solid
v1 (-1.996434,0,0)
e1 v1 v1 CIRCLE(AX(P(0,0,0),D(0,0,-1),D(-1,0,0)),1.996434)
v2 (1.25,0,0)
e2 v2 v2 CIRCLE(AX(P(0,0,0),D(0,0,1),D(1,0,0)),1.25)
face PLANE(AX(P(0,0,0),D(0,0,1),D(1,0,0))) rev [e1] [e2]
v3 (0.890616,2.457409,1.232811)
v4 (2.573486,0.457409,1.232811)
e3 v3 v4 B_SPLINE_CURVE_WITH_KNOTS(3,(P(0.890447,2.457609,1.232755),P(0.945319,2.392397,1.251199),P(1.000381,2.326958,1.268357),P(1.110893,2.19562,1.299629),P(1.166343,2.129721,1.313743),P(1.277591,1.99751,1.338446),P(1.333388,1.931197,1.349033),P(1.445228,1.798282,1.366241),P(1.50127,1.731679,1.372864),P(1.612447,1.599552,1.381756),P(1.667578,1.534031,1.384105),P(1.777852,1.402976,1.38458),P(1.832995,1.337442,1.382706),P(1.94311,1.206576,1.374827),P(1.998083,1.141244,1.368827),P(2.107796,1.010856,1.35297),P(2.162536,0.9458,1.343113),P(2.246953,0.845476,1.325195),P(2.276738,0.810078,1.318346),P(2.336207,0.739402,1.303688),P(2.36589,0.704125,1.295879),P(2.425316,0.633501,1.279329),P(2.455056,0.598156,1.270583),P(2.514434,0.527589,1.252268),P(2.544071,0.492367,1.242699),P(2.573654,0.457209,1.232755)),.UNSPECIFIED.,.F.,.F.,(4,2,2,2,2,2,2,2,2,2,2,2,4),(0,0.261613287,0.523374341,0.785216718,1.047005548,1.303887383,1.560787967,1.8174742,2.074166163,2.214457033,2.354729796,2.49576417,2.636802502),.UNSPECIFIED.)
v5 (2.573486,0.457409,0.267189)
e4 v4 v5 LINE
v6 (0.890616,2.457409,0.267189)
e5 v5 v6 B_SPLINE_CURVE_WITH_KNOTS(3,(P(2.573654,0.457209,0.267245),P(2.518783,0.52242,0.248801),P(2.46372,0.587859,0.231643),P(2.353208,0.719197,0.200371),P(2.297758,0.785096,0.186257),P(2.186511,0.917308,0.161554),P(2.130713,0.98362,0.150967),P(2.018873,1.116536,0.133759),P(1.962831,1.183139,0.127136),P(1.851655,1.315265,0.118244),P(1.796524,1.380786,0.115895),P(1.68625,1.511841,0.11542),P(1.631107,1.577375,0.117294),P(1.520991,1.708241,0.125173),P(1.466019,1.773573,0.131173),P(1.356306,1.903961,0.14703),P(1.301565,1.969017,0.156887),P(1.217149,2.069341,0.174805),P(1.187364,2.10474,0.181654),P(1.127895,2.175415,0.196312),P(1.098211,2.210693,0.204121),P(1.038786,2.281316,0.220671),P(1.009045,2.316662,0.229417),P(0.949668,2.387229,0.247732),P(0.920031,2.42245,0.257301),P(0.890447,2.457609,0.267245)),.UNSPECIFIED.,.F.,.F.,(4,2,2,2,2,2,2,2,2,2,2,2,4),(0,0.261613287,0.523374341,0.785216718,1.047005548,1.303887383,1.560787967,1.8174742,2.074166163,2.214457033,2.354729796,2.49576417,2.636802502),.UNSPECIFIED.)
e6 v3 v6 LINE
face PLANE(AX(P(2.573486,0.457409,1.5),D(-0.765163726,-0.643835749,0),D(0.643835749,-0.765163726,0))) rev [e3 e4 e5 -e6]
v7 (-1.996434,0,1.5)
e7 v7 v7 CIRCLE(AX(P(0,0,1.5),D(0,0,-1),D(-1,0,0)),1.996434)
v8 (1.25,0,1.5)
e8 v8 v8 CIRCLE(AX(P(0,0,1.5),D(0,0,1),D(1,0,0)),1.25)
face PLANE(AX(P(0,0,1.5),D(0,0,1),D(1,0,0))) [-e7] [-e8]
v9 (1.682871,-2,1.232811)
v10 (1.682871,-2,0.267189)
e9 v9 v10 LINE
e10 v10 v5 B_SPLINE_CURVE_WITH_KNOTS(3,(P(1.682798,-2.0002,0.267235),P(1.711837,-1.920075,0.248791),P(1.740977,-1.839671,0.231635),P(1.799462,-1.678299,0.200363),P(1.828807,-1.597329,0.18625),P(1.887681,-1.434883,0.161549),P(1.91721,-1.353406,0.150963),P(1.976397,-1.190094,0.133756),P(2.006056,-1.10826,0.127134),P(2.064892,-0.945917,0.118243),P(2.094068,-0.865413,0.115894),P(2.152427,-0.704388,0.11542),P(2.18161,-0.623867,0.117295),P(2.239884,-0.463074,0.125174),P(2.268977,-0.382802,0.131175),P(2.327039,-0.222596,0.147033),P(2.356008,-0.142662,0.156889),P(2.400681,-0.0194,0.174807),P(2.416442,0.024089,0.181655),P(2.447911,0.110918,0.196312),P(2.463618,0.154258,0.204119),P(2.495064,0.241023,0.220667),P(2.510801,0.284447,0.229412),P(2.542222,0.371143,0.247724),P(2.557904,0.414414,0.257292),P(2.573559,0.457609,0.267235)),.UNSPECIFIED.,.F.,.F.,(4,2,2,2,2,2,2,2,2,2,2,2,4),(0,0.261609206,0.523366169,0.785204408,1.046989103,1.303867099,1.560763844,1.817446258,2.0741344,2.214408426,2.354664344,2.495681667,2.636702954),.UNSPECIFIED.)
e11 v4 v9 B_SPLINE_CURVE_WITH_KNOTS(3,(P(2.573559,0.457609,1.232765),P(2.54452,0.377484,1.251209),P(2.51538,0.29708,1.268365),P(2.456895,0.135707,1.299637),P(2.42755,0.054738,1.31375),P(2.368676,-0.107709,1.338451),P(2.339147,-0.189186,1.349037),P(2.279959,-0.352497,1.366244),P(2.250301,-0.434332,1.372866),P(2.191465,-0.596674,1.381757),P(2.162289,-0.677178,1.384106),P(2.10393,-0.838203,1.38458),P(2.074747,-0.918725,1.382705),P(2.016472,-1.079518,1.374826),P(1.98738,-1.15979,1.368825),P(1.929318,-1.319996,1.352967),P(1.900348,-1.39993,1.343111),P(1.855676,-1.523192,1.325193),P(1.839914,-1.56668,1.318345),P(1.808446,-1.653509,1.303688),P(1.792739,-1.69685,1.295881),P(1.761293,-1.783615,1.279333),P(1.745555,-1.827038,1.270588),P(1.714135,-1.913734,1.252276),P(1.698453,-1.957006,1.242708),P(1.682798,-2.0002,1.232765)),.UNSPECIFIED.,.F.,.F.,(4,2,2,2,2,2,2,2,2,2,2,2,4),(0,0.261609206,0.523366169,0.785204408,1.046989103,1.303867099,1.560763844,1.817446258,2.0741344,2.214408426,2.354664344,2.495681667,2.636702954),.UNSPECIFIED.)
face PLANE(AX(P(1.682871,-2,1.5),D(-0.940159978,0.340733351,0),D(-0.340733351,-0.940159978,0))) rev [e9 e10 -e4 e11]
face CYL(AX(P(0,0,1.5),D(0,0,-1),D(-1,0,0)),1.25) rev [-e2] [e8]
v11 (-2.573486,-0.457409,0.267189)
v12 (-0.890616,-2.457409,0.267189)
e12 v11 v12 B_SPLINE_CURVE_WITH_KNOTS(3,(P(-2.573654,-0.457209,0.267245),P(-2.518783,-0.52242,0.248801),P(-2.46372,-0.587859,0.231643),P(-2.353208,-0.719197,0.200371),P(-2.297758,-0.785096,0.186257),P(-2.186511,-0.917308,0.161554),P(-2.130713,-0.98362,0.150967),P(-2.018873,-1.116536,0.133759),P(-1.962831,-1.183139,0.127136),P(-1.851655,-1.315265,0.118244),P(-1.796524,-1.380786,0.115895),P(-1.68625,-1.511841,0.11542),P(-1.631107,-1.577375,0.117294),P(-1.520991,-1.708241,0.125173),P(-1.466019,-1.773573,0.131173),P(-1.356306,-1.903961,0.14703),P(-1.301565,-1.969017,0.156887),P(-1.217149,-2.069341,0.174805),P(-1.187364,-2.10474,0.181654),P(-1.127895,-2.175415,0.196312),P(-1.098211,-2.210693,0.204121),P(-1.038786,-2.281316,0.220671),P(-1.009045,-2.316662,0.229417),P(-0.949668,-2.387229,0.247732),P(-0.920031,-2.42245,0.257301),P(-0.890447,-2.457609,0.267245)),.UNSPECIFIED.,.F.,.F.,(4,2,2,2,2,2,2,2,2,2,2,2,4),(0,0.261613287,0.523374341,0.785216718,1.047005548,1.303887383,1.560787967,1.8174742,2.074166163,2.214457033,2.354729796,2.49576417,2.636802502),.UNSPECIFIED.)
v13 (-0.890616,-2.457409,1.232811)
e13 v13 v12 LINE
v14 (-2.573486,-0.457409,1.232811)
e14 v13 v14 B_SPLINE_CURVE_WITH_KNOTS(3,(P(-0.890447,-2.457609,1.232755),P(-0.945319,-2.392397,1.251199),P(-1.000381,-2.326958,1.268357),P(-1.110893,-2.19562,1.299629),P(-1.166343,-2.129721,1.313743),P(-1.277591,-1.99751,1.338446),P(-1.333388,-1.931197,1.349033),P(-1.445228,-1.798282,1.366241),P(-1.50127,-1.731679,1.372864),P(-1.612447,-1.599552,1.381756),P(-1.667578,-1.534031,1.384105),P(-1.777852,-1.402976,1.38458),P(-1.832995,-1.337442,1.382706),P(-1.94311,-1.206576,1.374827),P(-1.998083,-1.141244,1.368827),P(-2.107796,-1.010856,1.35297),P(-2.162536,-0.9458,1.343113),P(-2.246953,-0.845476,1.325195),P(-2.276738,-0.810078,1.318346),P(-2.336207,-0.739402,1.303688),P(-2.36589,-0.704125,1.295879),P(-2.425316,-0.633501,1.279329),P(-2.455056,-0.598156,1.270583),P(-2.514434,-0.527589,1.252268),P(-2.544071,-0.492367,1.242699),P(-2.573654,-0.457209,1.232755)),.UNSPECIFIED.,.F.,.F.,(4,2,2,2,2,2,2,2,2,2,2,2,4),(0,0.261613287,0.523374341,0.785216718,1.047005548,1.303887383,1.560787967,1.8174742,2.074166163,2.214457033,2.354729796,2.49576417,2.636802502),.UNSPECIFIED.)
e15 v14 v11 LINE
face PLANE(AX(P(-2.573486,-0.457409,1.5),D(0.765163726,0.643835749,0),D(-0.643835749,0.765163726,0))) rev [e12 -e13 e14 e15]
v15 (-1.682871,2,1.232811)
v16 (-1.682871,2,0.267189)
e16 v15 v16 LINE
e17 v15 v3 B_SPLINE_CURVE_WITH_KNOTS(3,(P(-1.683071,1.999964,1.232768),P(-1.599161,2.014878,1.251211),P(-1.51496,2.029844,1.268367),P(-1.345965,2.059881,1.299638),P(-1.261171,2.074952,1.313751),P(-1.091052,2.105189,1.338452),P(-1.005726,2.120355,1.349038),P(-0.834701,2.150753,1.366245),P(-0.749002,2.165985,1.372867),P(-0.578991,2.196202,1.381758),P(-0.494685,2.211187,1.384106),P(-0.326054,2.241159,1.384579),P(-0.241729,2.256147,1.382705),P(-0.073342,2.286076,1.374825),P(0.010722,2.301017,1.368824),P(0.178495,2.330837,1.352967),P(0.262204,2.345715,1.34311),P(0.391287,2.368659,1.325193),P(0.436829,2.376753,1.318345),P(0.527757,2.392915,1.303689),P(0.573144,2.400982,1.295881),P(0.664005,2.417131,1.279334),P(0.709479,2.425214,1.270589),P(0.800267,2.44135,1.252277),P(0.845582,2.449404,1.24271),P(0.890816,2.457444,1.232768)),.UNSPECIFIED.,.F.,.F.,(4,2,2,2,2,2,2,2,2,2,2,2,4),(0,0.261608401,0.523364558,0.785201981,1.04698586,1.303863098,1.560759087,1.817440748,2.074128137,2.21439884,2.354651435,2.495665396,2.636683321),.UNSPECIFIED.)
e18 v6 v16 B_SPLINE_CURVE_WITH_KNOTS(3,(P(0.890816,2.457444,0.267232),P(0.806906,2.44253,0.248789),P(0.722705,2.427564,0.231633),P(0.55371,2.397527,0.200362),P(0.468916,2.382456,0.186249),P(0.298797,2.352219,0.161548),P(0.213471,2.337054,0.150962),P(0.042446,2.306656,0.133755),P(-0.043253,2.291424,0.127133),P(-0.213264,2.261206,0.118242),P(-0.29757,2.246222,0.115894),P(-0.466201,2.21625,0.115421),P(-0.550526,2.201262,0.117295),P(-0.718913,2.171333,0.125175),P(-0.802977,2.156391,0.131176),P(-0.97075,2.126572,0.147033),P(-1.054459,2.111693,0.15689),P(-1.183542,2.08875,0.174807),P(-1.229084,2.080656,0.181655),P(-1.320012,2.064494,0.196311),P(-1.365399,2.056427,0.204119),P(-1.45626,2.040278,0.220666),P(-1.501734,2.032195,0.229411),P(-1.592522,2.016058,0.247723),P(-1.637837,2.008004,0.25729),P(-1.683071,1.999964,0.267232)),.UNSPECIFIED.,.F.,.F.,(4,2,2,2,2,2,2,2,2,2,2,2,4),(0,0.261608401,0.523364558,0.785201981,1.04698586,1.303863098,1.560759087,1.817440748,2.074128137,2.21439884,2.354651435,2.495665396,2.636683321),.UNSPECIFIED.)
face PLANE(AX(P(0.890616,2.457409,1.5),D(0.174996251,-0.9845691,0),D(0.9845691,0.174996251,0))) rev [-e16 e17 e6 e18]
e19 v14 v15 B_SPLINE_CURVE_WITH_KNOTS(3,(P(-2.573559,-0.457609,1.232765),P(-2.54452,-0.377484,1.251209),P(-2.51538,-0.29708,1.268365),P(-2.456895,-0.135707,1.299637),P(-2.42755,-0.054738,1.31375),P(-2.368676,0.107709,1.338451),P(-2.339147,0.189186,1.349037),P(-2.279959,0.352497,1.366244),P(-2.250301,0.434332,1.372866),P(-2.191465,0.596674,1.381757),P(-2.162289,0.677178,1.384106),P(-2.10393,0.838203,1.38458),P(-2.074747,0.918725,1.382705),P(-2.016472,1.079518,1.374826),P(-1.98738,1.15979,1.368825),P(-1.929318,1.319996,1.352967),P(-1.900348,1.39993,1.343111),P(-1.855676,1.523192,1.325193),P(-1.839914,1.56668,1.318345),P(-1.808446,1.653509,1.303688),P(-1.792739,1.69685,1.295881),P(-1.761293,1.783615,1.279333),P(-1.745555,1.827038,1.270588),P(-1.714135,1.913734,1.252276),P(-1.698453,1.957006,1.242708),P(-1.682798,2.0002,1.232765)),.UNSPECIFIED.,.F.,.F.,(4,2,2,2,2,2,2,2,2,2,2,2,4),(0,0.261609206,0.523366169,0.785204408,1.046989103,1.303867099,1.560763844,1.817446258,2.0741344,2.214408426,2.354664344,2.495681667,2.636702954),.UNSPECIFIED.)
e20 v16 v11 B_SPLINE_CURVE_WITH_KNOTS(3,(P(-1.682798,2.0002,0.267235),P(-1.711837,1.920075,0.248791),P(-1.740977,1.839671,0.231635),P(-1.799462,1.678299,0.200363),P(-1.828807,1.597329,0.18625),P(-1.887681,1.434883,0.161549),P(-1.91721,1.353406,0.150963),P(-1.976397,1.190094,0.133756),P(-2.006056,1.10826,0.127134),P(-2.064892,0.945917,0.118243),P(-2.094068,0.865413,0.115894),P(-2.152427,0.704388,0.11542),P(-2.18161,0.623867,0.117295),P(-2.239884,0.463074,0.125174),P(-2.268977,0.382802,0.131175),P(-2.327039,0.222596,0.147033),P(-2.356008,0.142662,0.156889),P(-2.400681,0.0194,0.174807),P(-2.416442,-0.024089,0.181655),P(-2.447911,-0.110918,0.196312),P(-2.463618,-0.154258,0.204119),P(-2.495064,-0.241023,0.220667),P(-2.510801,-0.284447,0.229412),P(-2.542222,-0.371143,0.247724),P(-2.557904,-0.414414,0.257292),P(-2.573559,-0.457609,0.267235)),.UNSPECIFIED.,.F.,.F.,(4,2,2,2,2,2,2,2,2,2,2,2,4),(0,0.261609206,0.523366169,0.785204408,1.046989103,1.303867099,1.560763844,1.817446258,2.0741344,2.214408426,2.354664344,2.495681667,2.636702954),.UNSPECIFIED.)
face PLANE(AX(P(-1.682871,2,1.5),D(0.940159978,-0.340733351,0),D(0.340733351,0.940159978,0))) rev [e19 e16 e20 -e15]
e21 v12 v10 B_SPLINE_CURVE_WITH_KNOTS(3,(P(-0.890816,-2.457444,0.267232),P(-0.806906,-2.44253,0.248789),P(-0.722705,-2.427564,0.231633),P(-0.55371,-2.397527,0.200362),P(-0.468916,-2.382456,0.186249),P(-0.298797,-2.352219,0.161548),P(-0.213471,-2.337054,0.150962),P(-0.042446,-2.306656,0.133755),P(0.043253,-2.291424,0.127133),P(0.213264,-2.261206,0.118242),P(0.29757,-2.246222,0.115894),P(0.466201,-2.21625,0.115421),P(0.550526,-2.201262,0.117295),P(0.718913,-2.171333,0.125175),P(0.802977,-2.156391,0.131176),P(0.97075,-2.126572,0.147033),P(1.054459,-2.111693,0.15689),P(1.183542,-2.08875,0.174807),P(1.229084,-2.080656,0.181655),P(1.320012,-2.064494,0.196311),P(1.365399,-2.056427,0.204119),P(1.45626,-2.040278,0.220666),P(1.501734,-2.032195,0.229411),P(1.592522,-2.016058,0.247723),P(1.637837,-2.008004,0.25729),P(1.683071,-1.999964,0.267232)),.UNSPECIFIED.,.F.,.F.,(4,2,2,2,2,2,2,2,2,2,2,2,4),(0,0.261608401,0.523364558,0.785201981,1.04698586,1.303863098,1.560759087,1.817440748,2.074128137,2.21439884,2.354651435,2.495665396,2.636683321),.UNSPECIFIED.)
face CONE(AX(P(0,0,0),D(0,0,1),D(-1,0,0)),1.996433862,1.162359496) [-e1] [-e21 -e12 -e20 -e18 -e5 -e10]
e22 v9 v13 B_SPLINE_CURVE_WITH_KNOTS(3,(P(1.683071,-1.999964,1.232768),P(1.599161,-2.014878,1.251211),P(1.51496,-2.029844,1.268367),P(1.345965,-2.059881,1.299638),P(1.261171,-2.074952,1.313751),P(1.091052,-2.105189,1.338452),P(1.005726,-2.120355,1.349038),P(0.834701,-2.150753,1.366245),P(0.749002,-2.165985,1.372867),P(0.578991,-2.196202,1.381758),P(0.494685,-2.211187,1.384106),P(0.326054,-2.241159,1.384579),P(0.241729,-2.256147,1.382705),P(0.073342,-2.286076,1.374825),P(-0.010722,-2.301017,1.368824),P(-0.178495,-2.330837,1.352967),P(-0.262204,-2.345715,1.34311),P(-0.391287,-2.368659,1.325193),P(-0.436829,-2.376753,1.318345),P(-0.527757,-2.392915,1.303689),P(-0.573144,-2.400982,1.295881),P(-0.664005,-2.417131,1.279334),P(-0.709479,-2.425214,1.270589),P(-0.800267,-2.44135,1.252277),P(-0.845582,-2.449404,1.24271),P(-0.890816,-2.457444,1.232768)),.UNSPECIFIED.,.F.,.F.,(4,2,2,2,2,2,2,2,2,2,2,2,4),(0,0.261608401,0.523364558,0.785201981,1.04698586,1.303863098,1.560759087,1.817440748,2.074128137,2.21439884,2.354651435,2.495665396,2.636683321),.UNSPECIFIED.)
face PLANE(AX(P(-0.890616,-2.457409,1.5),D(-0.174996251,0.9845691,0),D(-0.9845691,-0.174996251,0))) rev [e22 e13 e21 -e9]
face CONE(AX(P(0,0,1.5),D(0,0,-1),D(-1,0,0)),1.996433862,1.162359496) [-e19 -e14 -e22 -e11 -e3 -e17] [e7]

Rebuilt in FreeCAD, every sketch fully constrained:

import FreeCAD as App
import Part
import Sketcher

V = App.Vector
Q = App.Units.Quantity

doc = App.newDocument("Part")
body = doc.addObject("PartDesign::Body", "Body")

sketch1 = doc.addObject("Sketcher::SketchObject", "Sketch")
body.addObject(sketch1)
sketch1.AttachmentSupport = (doc.XY_Plane, [""])
sketch1.MapMode = "FlatFace"
sketch1.addGeometry([
    Part.LineSegment(V(-0.890616, -2.457409, 0), V(1.682871, -2, 0)),
    Part.LineSegment(V(1.682871, -2, 0), V(2.573486, 0.457409, 0)),
    Part.LineSegment(V(2.573486, 0.457409, 0), V(0.890616, 2.457409, 0)),
    Part.LineSegment(V(0.890616, 2.457409, 0), V(-1.682871, 2, 0)),
    Part.LineSegment(V(-1.682871, 2, 0), V(-2.573486, -0.457409, 0)),
    Part.LineSegment(V(-2.573486, -0.457409, 0), V(-0.890616, -2.457409, 0)),
    Part.Circle(V(0, 0, 0), V(0, 0, 1), 1.25),
], False)
sketch1.addConstraint([
    Sketcher.Constraint("Coincident", 0, 2, 1, 1),
    Sketcher.Constraint("Coincident", 1, 2, 2, 1),
    Sketcher.Constraint("Coincident", 2, 2, 3, 1),
    Sketcher.Constraint("Coincident", 3, 2, 4, 1),
    Sketcher.Constraint("Coincident", 4, 2, 5, 1),
    Sketcher.Constraint("Coincident", 5, 2, 0, 1),
    Sketcher.Constraint("Coincident", 6, 3, -1, 1),
    Sketcher.Constraint("Symmetric", 0, 2, 3, 2, -1, 1),
    Sketcher.Constraint("Symmetric", 1, 2, 4, 2, -1, 1),
    Sketcher.Constraint("Symmetric", 2, 2, 5, 2, -1, 1),
    Sketcher.Constraint("Equal", 0, 1),
    Sketcher.Constraint("Equal", 1, 2),
    Sketcher.Constraint("Diameter", 6, Q("2.5 mm")),
    Sketcher.Constraint("DistanceY", 0, 2, -1, 1, Q("2 mm")),
    Sketcher.Constraint("DistanceY", 1, 2, 2, 2, Q("2 mm")),
    Sketcher.Constraint("DistanceX", 4, 2, 2, 2, Q("3.464102 mm")),
    Sketcher.Constraint("Distance", 0, Q("2.61382 mm")),
])
pad1 = doc.addObject("PartDesign::Pad", "Pad")
body.addObject(pad1)
pad1.Profile = sketch1
pad1.Length = 1.5

sketch2 = doc.addObject("Sketcher::SketchObject", "Sketch001")
body.addObject(sketch2)
sketch2.AttachmentSupport = (doc.XZ_Plane, [""])
sketch2.MapMode = "FlatFace"
sketch2.addGeometry([
    Part.LineSegment(V(1.996434, 1.5, 0), V(2.704394, 1.5, 0)),
    Part.LineSegment(V(2.704394, 1.5, 0), V(2.704394, 1.193613, 0)),
    Part.LineSegment(V(2.704394, 1.193613, 0), V(1.996434, 1.5, 0)),
], False)
sketch2.addConstraint([
    Sketcher.Constraint("Coincident", 0, 2, 1, 1),
    Sketcher.Constraint("Coincident", 1, 2, 2, 1),
    Sketcher.Constraint("Coincident", 2, 2, 0, 1),
    Sketcher.Constraint("Horizontal", 0),
    Sketcher.Constraint("Vertical", 1),
    Sketcher.Constraint("DistanceY", -1, 1, 0, 2, Q("1.5 mm")),
    Sketcher.Constraint("DistanceX", 0, 1, 0, 2, Q("0.707961 mm")),
    Sketcher.Constraint("DistanceY", 1, 2, 1, 1, Q("0.306387 mm")),
    Sketcher.Constraint("DistanceX", -1, 1, 0, 2, Q("2.704394 mm")),
])
groove = doc.addObject("PartDesign::Groove", "Groove")
body.addObject(groove)
groove.Profile = sketch2
groove.ReferenceAxis = (sketch2, ["V_Axis"])
groove.Angle = 360
doc.recompute()

datumplane = doc.addObject("PartDesign::Plane", "DatumPlane")
body.addObject(datumplane)
datumplane.AttachmentSupport = (doc.XY_Plane, [""])
datumplane.MapMode = "FlatFace"
datumplane.AttachmentOffset = App.Placement(V(0, 0, 0.75), App.Rotation())
mirrored = doc.addObject("PartDesign::Mirrored", "Mirrored")
body.addObject(mirrored)
mirrored.Originals = [groove]
mirrored.MirrorPlane = (datumplane, [""])
body.Tip = mirrored

doc.recompute()
